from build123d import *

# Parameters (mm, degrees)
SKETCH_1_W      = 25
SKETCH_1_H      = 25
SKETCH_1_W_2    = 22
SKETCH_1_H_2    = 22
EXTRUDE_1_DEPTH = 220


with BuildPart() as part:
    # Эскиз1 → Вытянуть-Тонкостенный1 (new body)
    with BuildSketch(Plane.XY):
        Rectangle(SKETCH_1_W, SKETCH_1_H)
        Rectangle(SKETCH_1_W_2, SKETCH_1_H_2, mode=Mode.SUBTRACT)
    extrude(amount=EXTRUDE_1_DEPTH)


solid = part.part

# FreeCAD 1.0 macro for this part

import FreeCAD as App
import Part
import Sketcher
from FreeCAD import Vector
Q = App.Units.Quantity


def add_polygon(sketch, points):
    """Adds a closed chain of lines whose ends are joined by coincident constraints."""
    first, n = sketch.GeometryCount, len(points)
    for a, b in zip(points, points[1:] + points[:1]):
        sketch.addGeometry(Part.LineSegment(App.Vector(*a, 0), App.Vector(*b, 0)), False)
    for i in range(n):
        sketch.addConstraint(Sketcher.Constraint("Coincident", first + i, 2, first + (i + 1) % n, 1))

doc = App.newDocument("Part")
params = doc.addObject("Spreadsheet::Sheet", "Params")
for row, (alias, value) in enumerate([
    ("sketch1_width", "25 mm"),
    ("sketch1_width2", "22 mm"),
    ("pad1_length", "220 mm"),
], start=1):
    params.set(f"A{row}", alias)
    params.set(f"B{row}", "=" + value)
    params.setAlias(f"B{row}", alias)

body = doc.addObject("PartDesign::Body", "Body")

# Sketch on XY plane
sketch1 = body.newObject("Sketcher::SketchObject", "Sketch")
sketch1.AttachmentSupport = (doc.getObject("XY_Plane"), [""])
sketch1.MapMode = "FlatFace"
add_polygon(sketch1, [(-12.5, 12.5), (-12.5, -12.5), (12.5, -12.5), (12.5, 12.5)])  # lines 0-3
add_polygon(sketch1, [(11, -11), (-11, -11), (-11, 11), (11, 11)])  # lines 4-7
sketch1.addConstraint([
    Sketcher.Constraint("Vertical", 0),
    Sketcher.Constraint("Horizontal", 1),
    Sketcher.Constraint("Vertical", 2),
    Sketcher.Constraint("Horizontal", 3),
    Sketcher.Constraint("Horizontal", 4),
    Sketcher.Constraint("Vertical", 5),
    Sketcher.Constraint("Horizontal", 6),
    Sketcher.Constraint("Vertical", 7),
    Sketcher.Constraint("Symmetric", 0, 2, 2, 2, -1, 1),
    Sketcher.Constraint("Symmetric", 4, 2, 6, 2, -1, 1),
    Sketcher.Constraint("Equal", 3, 0),
    Sketcher.Constraint("Equal", 6, 5),
    Sketcher.Constraint("DistanceX", 1, 1, 1, 2, Q("25 mm")),
    Sketcher.Constraint("DistanceX", 4, 2, 4, 1, Q("22 mm")),
])
sketch1.setExpression("Constraints[20]", "Params.sketch1_width")
sketch1.setExpression("Constraints[21]", "Params.sketch1_width2")
pad1 = body.newObject("PartDesign::Pad", "Pad")
pad1.Profile = sketch1
pad1.setExpression("Length", "Params.pad1_length")

doc.recompute()
